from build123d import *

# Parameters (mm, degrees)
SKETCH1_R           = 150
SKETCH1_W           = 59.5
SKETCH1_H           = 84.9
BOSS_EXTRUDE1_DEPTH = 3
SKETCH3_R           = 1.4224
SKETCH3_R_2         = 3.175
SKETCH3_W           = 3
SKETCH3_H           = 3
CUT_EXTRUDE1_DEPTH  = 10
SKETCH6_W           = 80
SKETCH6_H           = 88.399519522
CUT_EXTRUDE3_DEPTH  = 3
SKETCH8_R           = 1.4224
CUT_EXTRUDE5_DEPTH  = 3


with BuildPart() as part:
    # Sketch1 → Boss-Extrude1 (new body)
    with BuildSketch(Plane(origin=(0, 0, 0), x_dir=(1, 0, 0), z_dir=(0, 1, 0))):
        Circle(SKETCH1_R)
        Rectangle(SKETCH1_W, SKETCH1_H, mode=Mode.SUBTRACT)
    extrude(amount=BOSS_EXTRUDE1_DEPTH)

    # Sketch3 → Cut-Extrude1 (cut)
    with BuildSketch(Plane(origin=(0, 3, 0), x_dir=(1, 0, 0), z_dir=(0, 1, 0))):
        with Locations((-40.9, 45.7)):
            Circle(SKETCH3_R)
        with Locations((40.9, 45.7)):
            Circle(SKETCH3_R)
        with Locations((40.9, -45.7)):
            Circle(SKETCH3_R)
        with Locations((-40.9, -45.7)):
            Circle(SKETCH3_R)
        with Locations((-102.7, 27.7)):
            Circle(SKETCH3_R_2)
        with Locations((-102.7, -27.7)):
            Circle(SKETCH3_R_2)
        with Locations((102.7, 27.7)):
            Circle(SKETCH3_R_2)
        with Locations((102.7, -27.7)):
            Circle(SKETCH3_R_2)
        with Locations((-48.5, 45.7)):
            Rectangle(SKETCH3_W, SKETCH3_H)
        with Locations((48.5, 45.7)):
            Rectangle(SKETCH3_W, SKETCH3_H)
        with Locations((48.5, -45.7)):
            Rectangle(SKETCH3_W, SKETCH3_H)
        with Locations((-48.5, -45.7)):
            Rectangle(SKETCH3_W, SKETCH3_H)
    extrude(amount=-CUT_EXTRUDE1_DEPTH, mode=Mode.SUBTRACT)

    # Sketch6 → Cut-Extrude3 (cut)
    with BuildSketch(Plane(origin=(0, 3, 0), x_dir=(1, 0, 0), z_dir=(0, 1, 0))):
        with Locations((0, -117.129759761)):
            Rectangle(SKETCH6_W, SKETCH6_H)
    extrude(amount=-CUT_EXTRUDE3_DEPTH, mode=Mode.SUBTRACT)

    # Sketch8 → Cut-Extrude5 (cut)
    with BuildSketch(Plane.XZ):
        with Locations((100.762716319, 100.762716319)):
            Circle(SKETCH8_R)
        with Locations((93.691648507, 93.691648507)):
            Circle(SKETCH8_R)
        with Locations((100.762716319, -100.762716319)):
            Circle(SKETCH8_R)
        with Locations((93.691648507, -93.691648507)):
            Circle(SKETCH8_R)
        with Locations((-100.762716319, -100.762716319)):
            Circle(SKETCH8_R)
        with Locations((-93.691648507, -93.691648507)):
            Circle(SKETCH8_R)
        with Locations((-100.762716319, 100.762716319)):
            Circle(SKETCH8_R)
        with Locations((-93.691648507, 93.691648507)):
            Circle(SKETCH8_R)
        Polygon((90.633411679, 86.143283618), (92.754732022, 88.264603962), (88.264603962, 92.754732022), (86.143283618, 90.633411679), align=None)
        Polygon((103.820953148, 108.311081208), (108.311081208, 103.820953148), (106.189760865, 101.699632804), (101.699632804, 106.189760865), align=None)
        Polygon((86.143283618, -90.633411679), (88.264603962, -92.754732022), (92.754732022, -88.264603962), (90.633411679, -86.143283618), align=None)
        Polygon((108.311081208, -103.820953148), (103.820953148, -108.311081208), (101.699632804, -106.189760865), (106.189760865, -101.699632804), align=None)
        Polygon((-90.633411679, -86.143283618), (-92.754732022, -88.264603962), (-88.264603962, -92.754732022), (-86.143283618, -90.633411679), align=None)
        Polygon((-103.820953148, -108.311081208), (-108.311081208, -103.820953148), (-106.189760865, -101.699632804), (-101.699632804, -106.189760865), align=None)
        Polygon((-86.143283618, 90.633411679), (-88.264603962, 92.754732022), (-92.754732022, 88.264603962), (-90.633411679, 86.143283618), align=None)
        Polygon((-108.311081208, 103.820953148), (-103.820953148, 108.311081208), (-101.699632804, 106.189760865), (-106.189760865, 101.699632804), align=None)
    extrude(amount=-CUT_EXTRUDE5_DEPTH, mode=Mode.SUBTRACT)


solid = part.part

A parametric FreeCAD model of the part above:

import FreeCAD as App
import Part
import Sketcher

V = App.Vector
Q = App.Units.Quantity

doc = App.newDocument("Part")
body = doc.addObject("PartDesign::Body", "Body")

sketch1 = body.newObject("Sketcher::SketchObject", "Sketch")
sketch1.AttachmentSupport = (doc.getObject("XZ_Plane"), [""])
sketch1.MapMode = "FlatFace"
sketch1.addGeometry([
    Part.Circle(V(0, 0, 0), V(0, 0, 1), 150),
    Part.LineSegment(V(30, 42, 0), V(-30, 42, 0)),
    Part.LineSegment(V(-30, 42, 0), V(-30, -42, 0)),
    Part.LineSegment(V(-30, -42, 0), V(30, -42, 0)),
    Part.LineSegment(V(30, -42, 0), V(30, 42, 0)),
], False)
sketch1.addConstraint([
    Sketcher.Constraint("Coincident", 1, 2, 2, 1),
    Sketcher.Constraint("Coincident", 2, 2, 3, 1),
    Sketcher.Constraint("Coincident", 3, 2, 4, 1),
    Sketcher.Constraint("Coincident", 4, 2, 1, 1),
    Sketcher.Constraint("Horizontal", 1),
    Sketcher.Constraint("Vertical", 2),
    Sketcher.Constraint("Horizontal", 3),
    Sketcher.Constraint("Vertical", 4),
    Sketcher.Constraint("Coincident", 0, 3, -1, 1),
    Sketcher.Constraint("Symmetric", 1, 2, 3, 2, -1, 1),
    Sketcher.Constraint("Diameter", 0, Q("300 mm")),
    Sketcher.Constraint("DistanceX", 1, 2, 1, 1, Q("59.5 mm")),
    Sketcher.Constraint("DistanceY", 2, 2, 2, 1, Q("84.9 mm")),
])
pad1 = body.newObject("PartDesign::Pad", "Pad")
pad1.Profile = sketch1
pad1.Length = 3
pad1.Reversed = True

sketch2 = body.newObject("Sketcher::SketchObject", "Sketch001")
sketch2.AttachmentSupport = (doc.getObject("XZ_Plane"), [""])
sketch2.MapMode = "FlatFace"
sketch2.AttachmentOffset = App.Placement(V(0, 0, -3), App.Rotation())
sketch2.addGeometry([
    Part.Circle(V(-40.9, -45.7, 0), V(0, 0, 1), 1.4),
    Part.Circle(V(40.9, -45.7, 0), V(0, 0, 1), 1.4),
    Part.Circle(V(40.9, 45.7, 0), V(0, 0, 1), 1.4),
    Part.Circle(V(-40.9, 45.7, 0), V(0, 0, 1), 1.4),
    Part.Circle(V(-102.7, -27.7, 0), V(0, 0, 1), 3.2),
    Part.Circle(V(-102.7, 27.7, 0), V(0, 0, 1), 3.2),
    Part.Circle(V(102.7, -27.7, 0), V(0, 0, 1), 3.2),
    Part.Circle(V(102.7, 27.7, 0), V(0, 0, 1), 3.2),
    Part.LineSegment(V(-50, -47.2, 0), V(-50, -44.2, 0)),
    Part.LineSegment(V(-50, -44.2, 0), V(-47, -44.2, 0)),
    Part.LineSegment(V(-47, -44.2, 0), V(-47, -47.2, 0)),
    Part.LineSegment(V(-47, -47.2, 0), V(-50, -47.2, 0)),
    Part.LineSegment(V(47, -47.2, 0), V(47, -44.2, 0)),
    Part.LineSegment(V(47, -44.2, 0), V(50, -44.2, 0)),
    Part.LineSegment(V(50, -44.2, 0), V(50, -47.2, 0)),
    Part.LineSegment(V(50, -47.2, 0), V(47, -47.2, 0)),
    Part.LineSegment(V(47, 44.2, 0), V(47, 47.2, 0)),
    Part.LineSegment(V(47, 47.2, 0), V(50, 47.2, 0)),
    Part.LineSegment(V(50, 47.2, 0), V(50, 44.2, 0)),
    Part.LineSegment(V(50, 44.2, 0), V(47, 44.2, 0)),
    Part.LineSegment(V(-50, 44.2, 0), V(-50, 47.2, 0)),
    Part.LineSegment(V(-50, 47.2, 0), V(-47, 47.2, 0)),
    Part.LineSegment(V(-47, 47.2, 0), V(-47, 44.2, 0)),
    Part.LineSegment(V(-47, 44.2, 0), V(-50, 44.2, 0)),
], False)
sketch2.addConstraint([
    Sketcher.Constraint("Coincident", 8, 2, 9, 1),
    Sketcher.Constraint("Coincident", 9, 2, 10, 1),
    Sketcher.Constraint("Coincident", 10, 2, 11, 1),
    Sketcher.Constraint("Coincident", 11, 2, 8, 1),
    Sketcher.Constraint("Coincident", 12, 2, 13, 1),
    Sketcher.Constraint("Coincident", 13, 2, 14, 1),
    Sketcher.Constraint("Coincident", 14, 2, 15, 1),
    Sketcher.Constraint("Coincident", 15, 2, 12, 1),
    Sketcher.Constraint("Coincident", 16, 2, 17, 1),
    Sketcher.Constraint("Coincident", 17, 2, 18, 1),
    Sketcher.Constraint("Coincident", 18, 2, 19, 1),
    Sketcher.Constraint("Coincident", 19, 2, 16, 1),
    Sketcher.Constraint("Coincident", 20, 2, 21, 1),
    Sketcher.Constraint("Coincident", 21, 2, 22, 1),
    Sketcher.Constraint("Coincident", 22, 2, 23, 1),
    Sketcher.Constraint("Coincident", 23, 2, 20, 1),
    Sketcher.Constraint("Vertical", 8),
    Sketcher.Constraint("Horizontal", 9),
    Sketcher.Constraint("Vertical", 10),
    Sketcher.Constraint("Horizontal", 11),
    Sketcher.Constraint("Vertical", 12),
    Sketcher.Constraint("Horizontal", 13),
    Sketcher.Constraint("Vertical", 14),
    Sketcher.Constraint("Horizontal", 15),
    Sketcher.Constraint("Vertical", 16),
    Sketcher.Constraint("Horizontal", 17),
    Sketcher.Constraint("Vertical", 18),
    Sketcher.Constraint("Horizontal", 19),
    Sketcher.Constraint("Vertical", 20),
    Sketcher.Constraint("Horizontal", 21),
    Sketcher.Constraint("Vertical", 22),
    Sketcher.Constraint("Horizontal", 23),
    Sketcher.Constraint("Equal", 0, 1),
    Sketcher.Constraint("Equal", 1, 2),
    Sketcher.Constraint("Equal", 2, 3),
    Sketcher.Constraint("Equal", 4, 5),
    Sketcher.Constraint("Equal", 5, 6),
    Sketcher.Constraint("Equal", 6, 7),
    Sketcher.Constraint("Symmetric", 0, 3, 2, 3, -1, 1),
    Sketcher.Constraint("Symmetric", 1, 3, 3, 3, -1, 1),
    Sketcher.Constraint("Symmetric", 5, 3, 6, 3, -1, 1),
    Sketcher.Constraint("Symmetric", 4, 3, 7, 3, -1, 1),
    Sketcher.Constraint("Symmetric", 10, 2, 16, 2, -1, 1),
    Sketcher.Constraint("Symmetric", 8, 2, 18, 2, -1, 1),
    Sketcher.Constraint("Symmetric", 14, 2, 20, 2, -1, 1),
    Sketcher.Constraint("Symmetric", 12, 2, 22, 2, -1, 1),
    Sketcher.Constraint("Symmetric", 0, 3, 1, 3, -2),
    Sketcher.Constraint("Symmetric", 4, 3, 6, 3, -2),
    Sketcher.Constraint("Symmetric", 9, 2, 12, 2, -2),
    Sketcher.Constraint("Symmetric", 11, 2, 14, 2, -2),
    Sketcher.Constraint("Equal", 23, 8),
    Sketcher.Constraint("Diameter", 4, Q("6.35 mm")),
    Sketcher.Constraint("DistanceX", 9, 1, 9, 2, Q("3 mm")),
    Sketcher.Constraint("DistanceX", 8, 2, -1, 1, Q("50 mm")),
    Sketcher.Constraint("DistanceY", 0, 3, 4, 3, Q("18 mm")),
    Sketcher.Constraint("Diameter", 0, Q("2.8448 mm")),
    Sketcher.Constraint("DistanceX", 0, 3, -1, 1, Q("40.9 mm")),
    Sketcher.Constraint("DistanceY", 0, 3, -1, 1, Q("45.7 mm")),
    Sketcher.Constraint("DistanceX", 4, 3, -1, 1, Q("102.7 mm")),
    Sketcher.Constraint("DistanceY", 8, 2, -1, 1, Q("44.2 mm")),
])
pocket1 = body.newObject("PartDesign::Pocket", "Pocket")
pocket1.Profile = sketch2
pocket1.Length = 10
pocket1.Reversed = True

sketch3 = body.newObject("Sketcher::SketchObject", "Sketch002")
sketch3.AttachmentSupport = (doc.getObject("XZ_Plane"), [""])
sketch3.MapMode = "FlatFace"
sketch3.AttachmentOffset = App.Placement(V(0, 0, -3), App.Rotation())
sketch3.addGeometry([
    Part.LineSegment(V(-40, 73, 0), V(-40, 161, 0)),
    Part.LineSegment(V(-40, 161, 0), V(40, 161, 0)),
    Part.LineSegment(V(40, 161, 0), V(40, 73, 0)),
    Part.LineSegment(V(40, 73, 0), V(-40, 73, 0)),
], False)
sketch3.addConstraint([
    Sketcher.Constraint("Coincident", 0, 2, 1, 1),
    Sketcher.Constraint("Coincident", 1, 2, 2, 1),
    Sketcher.Constraint("Coincident", 2, 2, 3, 1),
    Sketcher.Constraint("Coincident", 3, 2, 0, 1),
    Sketcher.Constraint("Vertical", 0),
    Sketcher.Constraint("Horizontal", 1),
    Sketcher.Constraint("Vertical", 2),
    Sketcher.Constraint("Horizontal", 3),
    Sketcher.Constraint("DistanceX", 1, 1, 1, 2, Q("80 mm")),
    Sketcher.Constraint("DistanceX", 0, 2, -1, 1, Q("40 mm")),
    Sketcher.Constraint("DistanceY", -1, 1, 2, 2, Q("72.93 mm")),
    Sketcher.Constraint("DistanceY", 0, 1, 0, 2, Q("88.39952 mm")),
])
pocket2 = body.newObject("PartDesign::Pocket", "Pocket001")
pocket2.Profile = sketch3
pocket2.Length = 3
pocket2.Reversed = True

sketch4 = body.newObject("Sketcher::SketchObject", "Sketch003")
sketch4.AttachmentSupport = (doc.getObject("XZ_Plane"), [""])
sketch4.MapMode = "FlatFace"
sketch4.addGeometry([
    Part.Circle(V(100.8, 100.8, 0), V(0, 0, 1), 1.4),
    Part.Circle(V(93.7, 93.7, 0), V(0, 0, 1), 1.4),
    Part.Circle(V(100.8, -100.8, 0), V(0, 0, 1), 1.4),
    Part.Circle(V(93.7, -93.7, 0), V(0, 0, 1), 1.4),
    Part.Circle(V(-100.8, -100.8, 0), V(0, 0, 1), 1.4),
    Part.Circle(V(-93.7, -93.7, 0), V(0, 0, 1), 1.4),
    Part.Circle(V(-100.8, 100.8, 0), V(0, 0, 1), 1.4),
    Part.Circle(V(-93.7, 93.7, 0), V(0, 0, 1), 1.4),
    Part.LineSegment(V(90.6, 86.1, 0), V(92.8, 88.3, 0)),
    Part.LineSegment(V(92.8, 88.3, 0), V(88.3, 92.8, 0)),
    Part.LineSegment(V(88.3, 92.8, 0), V(86.1, 90.6, 0)),
    Part.LineSegment(V(86.1, 90.6, 0), V(90.6, 86.1, 0)),
    Part.LineSegment(V(108.3, 103.8, 0), V(103.8, 108.3, 0)),
    Part.LineSegment(V(103.8, 108.3, 0), V(101.7, 106.2, 0)),
    Part.LineSegment(V(101.7, 106.2, 0), V(106.2, 101.7, 0)),
    Part.LineSegment(V(106.2, 101.7, 0), V(108.3, 103.8, 0)),
    Part.LineSegment(V(86.1, -90.6, 0), V(88.3, -92.8, 0)),
    Part.LineSegment(V(88.3, -92.8, 0), V(92.8, -88.3, 0)),
    Part.LineSegment(V(92.8, -88.3, 0), V(90.6, -86.1, 0)),
    Part.LineSegment(V(90.6, -86.1, 0), V(86.1, -90.6, 0)),
    Part.LineSegment(V(103.8, -108.3, 0), V(108.3, -103.8, 0)),
    Part.LineSegment(V(108.3, -103.8, 0), V(106.2, -101.7, 0)),
    Part.LineSegment(V(106.2, -101.7, 0), V(101.7, -106.2, 0)),
    Part.LineSegment(V(101.7, -106.2, 0), V(103.8, -108.3, 0)),
    Part.LineSegment(V(-90.6, -86.1, 0), V(-92.8, -88.3, 0)),
    Part.LineSegment(V(-92.8, -88.3, 0), V(-88.3, -92.8, 0)),
    Part.LineSegment(V(-88.3, -92.8, 0), V(-86.1, -90.6, 0)),
    Part.LineSegment(V(-86.1, -90.6, 0), V(-90.6, -86.1, 0)),
    Part.LineSegment(V(-108.3, -103.8, 0), V(-103.8, -108.3, 0)),
    Part.LineSegment(V(-103.8, -108.3, 0), V(-101.7, -106.2, 0)),
    Part.LineSegment(V(-101.7, -106.2, 0), V(-106.2, -101.7, 0)),
    Part.LineSegment(V(-106.2, -101.7, 0), V(-108.3, -103.8, 0)),
    Part.LineSegment(V(-86.1, 90.6, 0), V(-88.3, 92.8, 0)),
    Part.LineSegment(V(-88.3, 92.8, 0), V(-92.8, 88.3, 0)),
    Part.LineSegment(V(-92.8, 88.3, 0), V(-90.6, 86.1, 0)),
    Part.LineSegment(V(-90.6, 86.1, 0), V(-86.1, 90.6, 0)),
    Part.LineSegment(V(-103.8, 108.3, 0), V(-108.3, 103.8, 0)),
    Part.LineSegment(V(-108.3, 103.8, 0), V(-106.2, 101.7, 0)),
    Part.LineSegment(V(-106.2, 101.7, 0), V(-101.7, 106.2, 0)),
    Part.LineSegment(V(-101.7, 106.2, 0), V(-103.8, 108.3, 0)),
], False)
sketch4.addConstraint([
    Sketcher.Constraint("Coincident", 8, 2, 9, 1),
    Sketcher.Constraint("Coincident", 9, 2, 10, 1),
    Sketcher.Constraint("Coincident", 10, 2, 11, 1),
    Sketcher.Constraint("Coincident", 11, 2, 8, 1),
    Sketcher.Constraint("Coincident", 12, 2, 13, 1),
    Sketcher.Constraint("Coincident", 13, 2, 14, 1),
    Sketcher.Constraint("Coincident", 14, 2, 15, 1),
    Sketcher.Constraint("Coincident", 15, 2, 12, 1),
    Sketcher.Constraint("Coincident", 16, 2, 17, 1),
    Sketcher.Constraint("Coincident", 17, 2, 18, 1),
    Sketcher.Constraint("Coincident", 18, 2, 19, 1),
    Sketcher.Constraint("Coincident", 19, 2, 16, 1),
    Sketcher.Constraint("Coincident", 20, 2, 21, 1),
    Sketcher.Constraint("Coincident", 21, 2, 22, 1),
    Sketcher.Constraint("Coincident", 22, 2, 23, 1),
    Sketcher.Constraint("Coincident", 23, 2, 20, 1),
    Sketcher.Constraint("Coincident", 24, 2, 25, 1),
    Sketcher.Constraint("Coincident", 25, 2, 26, 1),
    Sketcher.Constraint("Coincident", 26, 2, 27, 1),
    Sketcher.Constraint("Coincident", 27, 2, 24, 1),
    Sketcher.Constraint("Coincident", 28, 2, 29, 1),
    Sketcher.Constraint("Coincident", 29, 2, 30, 1),
    Sketcher.Constraint("Coincident", 30, 2, 31, 1),
    Sketcher.Constraint("Coincident", 31, 2, 28, 1),
    Sketcher.Constraint("Coincident", 32, 2, 33, 1),
    Sketcher.Constraint("Coincident", 33, 2, 34, 1),
    Sketcher.Constraint("Coincident", 34, 2, 35, 1),
    Sketcher.Constraint("Coincident", 35, 2, 32, 1),
    Sketcher.Constraint("Coincident", 36, 2, 37, 1),
    Sketcher.Constraint("Coincident", 37, 2, 38, 1),
    Sketcher.Constraint("Coincident", 38, 2, 39, 1),
    Sketcher.Constraint("Coincident", 39, 2, 36, 1),
    Sketcher.Constraint("Equal", 0, 1),
    Sketcher.Constraint("Equal", 1, 2),
    Sketcher.Constraint("Equal", 2, 3),
    Sketcher.Constraint("Equal", 3, 4),
    Sketcher.Constraint("Equal", 4, 5),
    Sketcher.Constraint("Equal", 5, 6),
    Sketcher.Constraint("Equal", 6, 7),
    Sketcher.Constraint("Symmetric", 0, 3, 4, 3, -1, 1),
    Sketcher.Constraint("Symmetric", 1, 3, 5, 3, -1, 1),
    Sketcher.Constraint("Symmetric", 2, 3, 6, 3, -1, 1),
    Sketcher.Constraint("Symmetric", 3, 3, 7, 3, -1, 1),
    Sketcher.Constraint("Symmetric", 8, 2, 24, 2, -1, 1),
    Sketcher.Constraint("Symmetric", 9, 2, 25, 2, -1, 1),
    Sketcher.Constraint("Symmetric", 10, 2, 26, 2, -1, 1),
    Sketcher.Constraint("Symmetric", 11, 2, 27, 2, -1, 1),
    Sketcher.Constraint("Symmetric", 12, 2, 28, 2, -1, 1),
    Sketcher.Constraint("Symmetric", 13, 2, 29, 2, -1, 1),
    Sketcher.Constraint("Symmetric", 14, 2, 30, 2, -1, 1),
    Sketcher.Constraint("Symmetric", 15, 2, 31, 2, -1, 1),
    Sketcher.Constraint("Symmetric", 16, 2, 32, 2, -1, 1),
    Sketcher.Constraint("Symmetric", 17, 2, 33, 2, -1, 1),
    Sketcher.Constraint("Symmetric", 18, 2, 34, 2, -1, 1),
    Sketcher.Constraint("Symmetric", 19, 2, 35, 2, -1, 1),
    Sketcher.Constraint("Symmetric", 20, 2, 36, 2, -1, 1),
    Sketcher.Constraint("Symmetric", 21, 2, 37, 2, -1, 1),
    Sketcher.Constraint("Symmetric", 22, 2, 38, 2, -1, 1),
    Sketcher.Constraint("Symmetric", 23, 2, 39, 2, -1, 1),
    Sketcher.Constraint("Symmetric", 2, 3, 4, 3, -2),
    Sketcher.Constraint("Symmetric", 3, 3, 5, 3, -2),
    Sketcher.Constraint("Symmetric", 17, 2, 24, 2, -2),
    Sketcher.Constraint("Symmetric", 16, 2, 25, 2, -2),
    Sketcher.Constraint("Symmetric", 19, 2, 26, 2, -2),
    Sketcher.Constraint("Symmetric", 18, 2, 27, 2, -2),
    Sketcher.Constraint("Symmetric", 23, 2, 28, 2, -2),
    Sketcher.Constraint("Symmetric", 22, 2, 29, 2, -2),
    Sketcher.Constraint("Symmetric", 21, 2, 30, 2, -2),
    Sketcher.Constraint("Symmetric", 20, 2, 31, 2, -2),
    Sketcher.Constraint("Perpendicular", 8, 9),
    Sketcher.Constraint("Perpendicular", 9, 10),
    Sketcher.Constraint("Perpendicular", 10, 11),
    Sketcher.Constraint("Parallel", 11, 12),
    Sketcher.Constraint("Perpendicular", 12, 13),
    Sketcher.Constraint("Perpendicular", 13, 14),
    Sketcher.Constraint("Perpendicular", 14, 15),
    Sketcher.Constraint("Perpendicular", 15, 16),
    Sketcher.Constraint("Equal", 11, 12),
    Sketcher.Constraint("Equal", 10, 13),
    Sketcher.Constraint("Distance", 8, Q("3 mm")),
    Sketcher.Constraint("Diameter", 0, Q("2.8448 mm")),
    Sketcher.Constraint("Distance", 9, Q("6.35 mm")),
    Sketcher.Constraint("DistanceX", 8, 2, 13, 2, Q("8.944901 mm")),
    Sketcher.Constraint("DistanceY", 21, 2, 16, 2, Q("8.944901 mm")),
    Sketcher.Constraint("DistanceX", -1, 1, 1, 3, Q("93.691649 mm")),
    Sketcher.Constraint("DistanceY", -1, 1, 1, 3, Q("93.691649 mm")),
    Sketcher.Constraint("DistanceY", -1, 1, 10, 2, Q("90.633412 mm")),
    Sketcher.Constraint("DistanceX", -1, 1, 11, 2, Q("90.633412 mm")),
    Sketcher.Constraint("DistanceY", 2, 3, 8, 2, Q("189.02732 mm")),
    Sketcher.Constraint("DistanceX", -1, 1, 0, 3, Q("100.762716 mm")),
])
pocket3 = body.newObject("PartDesign::Pocket", "Pocket002")
pocket3.Profile = sketch4
pocket3.Length = 3

doc.recompute()
